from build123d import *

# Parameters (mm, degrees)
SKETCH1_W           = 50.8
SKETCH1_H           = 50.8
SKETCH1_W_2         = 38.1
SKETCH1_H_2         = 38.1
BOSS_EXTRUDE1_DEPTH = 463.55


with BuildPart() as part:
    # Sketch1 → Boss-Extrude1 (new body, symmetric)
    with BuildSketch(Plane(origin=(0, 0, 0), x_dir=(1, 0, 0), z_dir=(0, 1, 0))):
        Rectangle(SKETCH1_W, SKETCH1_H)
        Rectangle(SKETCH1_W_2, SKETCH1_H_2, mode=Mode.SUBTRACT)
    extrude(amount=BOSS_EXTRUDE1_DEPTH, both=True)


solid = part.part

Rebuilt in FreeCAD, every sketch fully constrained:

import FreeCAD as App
import Part
import Sketcher
Q = App.Units.Quantity


def add_polygon(sketch, points):
    """Adds a closed chain of lines whose ends are joined by coincident constraints."""
    first, n = sketch.GeometryCount, len(points)
    for a, b in zip(points, points[1:] + points[:1]):
        sketch.addGeometry(Part.LineSegment(App.Vector(*a, 0), App.Vector(*b, 0)), False)
    for i in range(n):
        sketch.addConstraint(Sketcher.Constraint("Coincident", first + i, 2, first + (i + 1) % n, 1))

doc = App.newDocument("Part")
params = doc.addObject("Spreadsheet::Sheet", "Params")
for row, (alias, value) in enumerate([
    ("sketch1_width", "2 in"),
    ("sketch1_width2", "1.5 in"),
    ("pad1_length", "36.5 in"),
], start=1):
    params.set(f"A{row}", alias)
    params.set(f"B{row}", "=" + value)
    params.setAlias(f"B{row}", alias)

body = doc.addObject("PartDesign::Body", "Body")

sketch1 = doc.addObject("Sketcher::SketchObject", "Sketch")
body.addObject(sketch1)
sketch1.AttachmentSupport = (doc.XZ_Plane, [""])
sketch1.MapMode = "FlatFace"
add_polygon(sketch1, [(-25, -25), (-25, 25), (25, 25), (25, -25)])
add_polygon(sketch1, [(19, 19), (-19, 19), (-19, -19), (19, -19)])
sketch1.addConstraint([
    Sketcher.Constraint("Vertical", 0),
    Sketcher.Constraint("Horizontal", 1),
    Sketcher.Constraint("Vertical", 2),
    Sketcher.Constraint("Horizontal", 3),
    Sketcher.Constraint("Horizontal", 4),
    Sketcher.Constraint("Vertical", 5),
    Sketcher.Constraint("Horizontal", 6),
    Sketcher.Constraint("Vertical", 7),
    Sketcher.Constraint("Symmetric", 0, 2, 2, 2, -1, 1),
    Sketcher.Constraint("Symmetric", 4, 2, 6, 2, -1, 1),
    Sketcher.Constraint("Equal", 3, 0),
    Sketcher.Constraint("Equal", 6, 5),
    Sketcher.Constraint("DistanceX", 1, 1, 1, 2, Q("2 in")),
    Sketcher.Constraint("DistanceX", 4, 2, 4, 1, Q("1.5 in")),
])
sketch1.setExpression("Constraints[20]", "Params.sketch1_width")
sketch1.setExpression("Constraints[21]", "Params.sketch1_width2")
pad1 = doc.addObject("PartDesign::Pad", "Pad")
body.addObject(pad1)
pad1.Profile = sketch1
pad1.setExpression("Length", "Params.pad1_length")
pad1.Midplane = True

doc.recompute()
